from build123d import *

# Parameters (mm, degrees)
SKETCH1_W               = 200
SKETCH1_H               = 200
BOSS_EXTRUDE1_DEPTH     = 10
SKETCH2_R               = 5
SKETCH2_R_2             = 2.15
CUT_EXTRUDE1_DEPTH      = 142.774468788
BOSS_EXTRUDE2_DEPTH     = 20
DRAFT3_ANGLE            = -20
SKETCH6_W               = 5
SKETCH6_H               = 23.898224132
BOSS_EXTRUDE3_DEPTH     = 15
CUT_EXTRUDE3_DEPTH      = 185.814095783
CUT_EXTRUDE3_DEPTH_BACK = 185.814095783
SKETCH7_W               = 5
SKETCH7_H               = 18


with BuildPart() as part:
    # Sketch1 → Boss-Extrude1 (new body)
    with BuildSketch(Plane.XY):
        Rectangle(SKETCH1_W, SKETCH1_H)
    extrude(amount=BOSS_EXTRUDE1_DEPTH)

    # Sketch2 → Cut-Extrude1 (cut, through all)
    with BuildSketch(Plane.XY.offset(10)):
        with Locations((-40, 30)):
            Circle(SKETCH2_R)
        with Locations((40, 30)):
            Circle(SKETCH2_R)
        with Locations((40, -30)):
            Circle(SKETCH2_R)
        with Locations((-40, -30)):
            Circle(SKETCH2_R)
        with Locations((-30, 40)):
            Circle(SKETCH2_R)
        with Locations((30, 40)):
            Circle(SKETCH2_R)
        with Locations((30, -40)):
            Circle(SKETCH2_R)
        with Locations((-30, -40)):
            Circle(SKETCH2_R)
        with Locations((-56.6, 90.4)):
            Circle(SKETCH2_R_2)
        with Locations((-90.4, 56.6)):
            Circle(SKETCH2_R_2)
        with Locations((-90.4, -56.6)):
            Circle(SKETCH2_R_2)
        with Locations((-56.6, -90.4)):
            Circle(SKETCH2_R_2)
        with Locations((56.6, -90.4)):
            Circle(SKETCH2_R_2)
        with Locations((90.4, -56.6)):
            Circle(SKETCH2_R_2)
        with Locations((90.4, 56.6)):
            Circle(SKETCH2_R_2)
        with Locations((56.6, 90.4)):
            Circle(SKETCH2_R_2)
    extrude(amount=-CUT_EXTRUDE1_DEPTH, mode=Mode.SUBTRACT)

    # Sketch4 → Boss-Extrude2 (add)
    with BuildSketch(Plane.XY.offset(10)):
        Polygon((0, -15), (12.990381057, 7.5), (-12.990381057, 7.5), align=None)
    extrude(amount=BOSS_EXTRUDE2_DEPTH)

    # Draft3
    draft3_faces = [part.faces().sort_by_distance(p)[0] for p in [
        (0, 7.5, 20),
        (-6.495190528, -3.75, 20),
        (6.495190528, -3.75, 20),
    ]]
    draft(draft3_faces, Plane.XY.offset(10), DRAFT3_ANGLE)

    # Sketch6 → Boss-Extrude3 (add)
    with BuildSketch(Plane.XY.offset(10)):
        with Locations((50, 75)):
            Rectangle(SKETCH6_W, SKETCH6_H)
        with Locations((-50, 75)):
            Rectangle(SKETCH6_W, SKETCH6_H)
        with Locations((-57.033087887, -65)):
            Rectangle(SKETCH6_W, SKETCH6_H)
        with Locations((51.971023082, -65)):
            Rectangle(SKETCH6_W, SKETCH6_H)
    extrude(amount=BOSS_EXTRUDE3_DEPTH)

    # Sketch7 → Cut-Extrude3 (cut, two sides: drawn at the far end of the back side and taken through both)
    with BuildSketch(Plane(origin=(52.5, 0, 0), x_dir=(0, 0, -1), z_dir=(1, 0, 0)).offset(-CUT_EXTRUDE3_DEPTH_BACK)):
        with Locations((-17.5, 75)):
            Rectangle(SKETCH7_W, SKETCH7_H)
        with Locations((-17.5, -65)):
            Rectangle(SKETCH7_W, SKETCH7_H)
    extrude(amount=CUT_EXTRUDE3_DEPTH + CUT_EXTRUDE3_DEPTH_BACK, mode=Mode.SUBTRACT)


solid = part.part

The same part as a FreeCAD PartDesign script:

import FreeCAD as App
import Part
import Sketcher
from FreeCAD import Vector
Q = App.Units.Quantity


def faces_at(feature, points):
    """Names of the faces that lie closest to the given points."""
    faces = feature.Shape.Faces
    near = lambda p: min(range(len(faces)), key=lambda i: faces[i].distToShape(Part.Vertex(*p))[0])
    return sorted({f"Face{near(p) + 1}" for p in points})

doc = App.newDocument("Part")
body = doc.addObject("PartDesign::Body", "Body")

# Sketch on XY plane
sketch1 = doc.addObject("Sketcher::SketchObject", "Sketch")
body.addObject(sketch1)
sketch1.AttachmentSupport = (doc.XY_Plane, [""])
sketch1.MapMode = "FlatFace"
sketch1.addGeometry([
    Part.LineSegment(Vector(-100, 100, 0), Vector(-100, -100, 0)),
    Part.LineSegment(Vector(-100, -100, 0), Vector(100, -100, 0)),
    Part.LineSegment(Vector(100, -100, 0), Vector(100, 100, 0)),
    Part.LineSegment(Vector(100, 100, 0), Vector(-100, 100, 0)),
], False)
sketch1.addConstraint([
    Sketcher.Constraint("Coincident", 0, 2, 1, 1),
    Sketcher.Constraint("Coincident", 1, 2, 2, 1),
    Sketcher.Constraint("Coincident", 2, 2, 3, 1),
    Sketcher.Constraint("Coincident", 3, 2, 0, 1),
    Sketcher.Constraint("Vertical", 0),
    Sketcher.Constraint("Horizontal", 1),
    Sketcher.Constraint("Vertical", 2),
    Sketcher.Constraint("Horizontal", 3),
    Sketcher.Constraint("Symmetric", 0, 2, 2, 2, -1, 1),
    Sketcher.Constraint("Equal", 3, 0),
    Sketcher.Constraint("DistanceX", 1, 1, 1, 2, Q("200 mm")),
])
pad1 = doc.addObject("PartDesign::Pad", "Pad")
body.addObject(pad1)
pad1.Profile = sketch1
pad1.Length = 10

# Sketch on XY plane
sketch2 = doc.addObject("Sketcher::SketchObject", "Sketch001")
body.addObject(sketch2)
sketch2.AttachmentSupport = (doc.XY_Plane, [""])
sketch2.MapMode = "FlatFace"
sketch2.AttachmentOffset = App.Placement(Vector(0, 0, 10), App.Rotation())
sketch2.addGeometry([
    Part.Circle(Vector(-40, 30, 0), Vector(0, 0, 1), 5),  # 0
    Part.Circle(Vector(40, 30, 0), Vector(0, 0, 1), 5),  # 1
    Part.Circle(Vector(40, -30, 0), Vector(0, 0, 1), 5),  # 2
    Part.Circle(Vector(-40, -30, 0), Vector(0, 0, 1), 5),  # 3
    Part.Circle(Vector(-30, 40, 0), Vector(0, 0, 1), 5),  # 4
    Part.Circle(Vector(30, 40, 0), Vector(0, 0, 1), 5),  # 5
    Part.Circle(Vector(30, -40, 0), Vector(0, 0, 1), 5),  # 6
    Part.Circle(Vector(-30, -40, 0), Vector(0, 0, 1), 5),  # 7
    Part.Circle(Vector(-56.6, 90.4, 0), Vector(0, 0, 1), 2.1),  # 8
    Part.Circle(Vector(-90.4, 56.6, 0), Vector(0, 0, 1), 2.1),  # 9
    Part.Circle(Vector(-90.4, -56.6, 0), Vector(0, 0, 1), 2.1),  # 10
    Part.Circle(Vector(-56.6, -90.4, 0), Vector(0, 0, 1), 2.1),  # 11
    Part.Circle(Vector(56.6, -90.4, 0), Vector(0, 0, 1), 2.1),  # 12
    Part.Circle(Vector(90.4, -56.6, 0), Vector(0, 0, 1), 2.1),  # 13
    Part.Circle(Vector(90.4, 56.6, 0), Vector(0, 0, 1), 2.1),  # 14
    Part.Circle(Vector(56.6, 90.4, 0), Vector(0, 0, 1), 2.1),  # 15
], False)
sketch2.addConstraint([
    Sketcher.Constraint("Equal", 0, 1),
    Sketcher.Constraint("Equal", 1, 2),
    Sketcher.Constraint("Equal", 2, 3),
    Sketcher.Constraint("Equal", 3, 4),
    Sketcher.Constraint("Equal", 4, 5),
    Sketcher.Constraint("Equal", 5, 6),
    Sketcher.Constraint("Equal", 6, 7),
    Sketcher.Constraint("Equal", 8, 9),
    Sketcher.Constraint("Equal", 9, 10),
    Sketcher.Constraint("Equal", 10, 11),
    Sketcher.Constraint("Equal", 11, 12),
    Sketcher.Constraint("Equal", 12, 13),
    Sketcher.Constraint("Equal", 13, 14),
    Sketcher.Constraint("Equal", 14, 15),
    Sketcher.Constraint("Symmetric", 0, 3, 2, 3, -1, 1),
    Sketcher.Constraint("Symmetric", 1, 3, 3, 3, -1, 1),
    Sketcher.Constraint("Symmetric", 4, 3, 6, 3, -1, 1),
    Sketcher.Constraint("Symmetric", 5, 3, 7, 3, -1, 1),
    Sketcher.Constraint("Symmetric", 8, 3, 12, 3, -1, 1),
    Sketcher.Constraint("Symmetric", 9, 3, 13, 3, -1, 1),
    Sketcher.Constraint("Symmetric", 10, 3, 14, 3, -1, 1),
    Sketcher.Constraint("Symmetric", 11, 3, 15, 3, -1, 1),
    Sketcher.Constraint("Symmetric", 0, 3, 1, 3, -2),
    Sketcher.Constraint("Symmetric", 4, 3, 5, 3, -2),
    Sketcher.Constraint("Symmetric", 11, 3, 12, 3, -2),
    Sketcher.Constraint("Symmetric", 10, 3, 13, 3, -2),
    Sketcher.Constraint("Diameter", 0, Q("10 mm")),
    Sketcher.Constraint("Diameter", 8, Q("4.3 mm")),
    Sketcher.Constraint("DistanceX", 0, 3, -1, 1, Q("40 mm")),
    Sketcher.Constraint("DistanceY", -1, 1, 0, 3, Q("30 mm")),
    Sketcher.Constraint("DistanceX", 4, 3, -1, 1, Q("30 mm")),
    Sketcher.Constraint("DistanceY", -1, 1, 4, 3, Q("40 mm")),
    Sketcher.Constraint("DistanceX", 8, 3, -1, 1, Q("56.6 mm")),
    Sketcher.Constraint("DistanceY", -1, 1, 8, 3, Q("90.4 mm")),
    Sketcher.Constraint("DistanceX", 9, 3, -1, 1, Q("90.4 mm")),
    Sketcher.Constraint("DistanceY", -1, 1, 9, 3, Q("56.6 mm")),
])
pocket1 = doc.addObject("PartDesign::Pocket", "Pocket")
body.addObject(pocket1)
pocket1.Profile = sketch2
pocket1.Type = "ThroughAll"

# Sketch on XY plane
sketch3 = doc.addObject("Sketcher::SketchObject", "Sketch002")
body.addObject(sketch3)
sketch3.AttachmentSupport = (doc.XY_Plane, [""])
sketch3.MapMode = "FlatFace"
sketch3.AttachmentOffset = App.Placement(Vector(0, 0, 10), App.Rotation())
sketch3.addGeometry([
    Part.LineSegment(Vector(0, -15, 0), Vector(13, 8, 0)),
    Part.LineSegment(Vector(13, 8, 0), Vector(-13, 8, 0)),
    Part.LineSegment(Vector(-13, 8, 0), Vector(0, -15, 0)),
], False)
sketch3.addConstraint([
    Sketcher.Constraint("Coincident", 0, 2, 1, 1),
    Sketcher.Constraint("Coincident", 1, 2, 2, 1),
    Sketcher.Constraint("Coincident", 2, 2, 0, 1),
    Sketcher.Constraint("Horizontal", 1),
    Sketcher.Constraint("PointOnObject", 2, 2, -2),
    Sketcher.Constraint("Equal", 0, 2),
    Sketcher.Constraint("Angle", 0, Q("60 deg")),
    Sketcher.Constraint("DistanceY", 2, 2, -1, 1, Q("15 mm")),
    Sketcher.Constraint("DistanceY", -1, 1, 0, 2, Q("7.5 mm")),
])
pad2 = doc.addObject("PartDesign::Pad", "Pad001")
body.addObject(pad2)
pad2.Profile = sketch3
pad2.Length = 20
doc.recompute()

datumplane = doc.addObject("PartDesign::Plane", "DatumPlane")
body.addObject(datumplane)
datumplane.AttachmentSupport = (doc.XY_Plane, [""])
datumplane.MapMode = "FlatFace"
datumplane.AttachmentOffset = App.Placement(Vector(0, 0, 10), App.Rotation())
draft = doc.addObject("PartDesign::Draft", "Draft")
body.addObject(draft)
draft.Base = (pad2, faces_at(pad2, [(0, 7.5, 20), (-6.495, -3.75, 20), (6.495, -3.75, 20)]))
draft.NeutralPlane = (datumplane, [""])
draft.Angle = 20
draft.Reversed = True

# Sketch on XY plane
sketch4 = doc.addObject("Sketcher::SketchObject", "Sketch003")
body.addObject(sketch4)
sketch4.AttachmentSupport = (doc.XY_Plane, [""])
sketch4.MapMode = "FlatFace"
sketch4.AttachmentOffset = App.Placement(Vector(0, 0, 10), App.Rotation())
sketch4.addGeometry([
    Part.LineSegment(Vector(48, 87, 0), Vector(48, 63, 0)),  # 0
    Part.LineSegment(Vector(48, 63, 0), Vector(52, 63, 0)),  # 1
    Part.LineSegment(Vector(52, 63, 0), Vector(52, 87, 0)),  # 2
    Part.LineSegment(Vector(52, 87, 0), Vector(48, 87, 0)),  # 3
    Part.LineSegment(Vector(-52, 87, 0), Vector(-52, 63, 0)),  # 4
    Part.LineSegment(Vector(-52, 63, 0), Vector(-48, 63, 0)),  # 5
    Part.LineSegment(Vector(-48, 63, 0), Vector(-48, 87, 0)),  # 6
    Part.LineSegment(Vector(-48, 87, 0), Vector(-52, 87, 0)),  # 7
    Part.LineSegment(Vector(-60, -53, 0), Vector(-60, -77, 0)),  # 8
    Part.LineSegment(Vector(-60, -77, 0), Vector(-55, -77, 0)),  # 9
    Part.LineSegment(Vector(-55, -77, 0), Vector(-55, -53, 0)),  # 10
    Part.LineSegment(Vector(-55, -53, 0), Vector(-60, -53, 0)),  # 11
    Part.LineSegment(Vector(49, -53, 0), Vector(49, -77, 0)),  # 12
    Part.LineSegment(Vector(49, -77, 0), Vector(54, -77, 0)),  # 13
    Part.LineSegment(Vector(54, -77, 0), Vector(54, -53, 0)),  # 14
    Part.LineSegment(Vector(54, -53, 0), Vector(49, -53, 0)),  # 15
], False)
sketch4.addConstraint([
    Sketcher.Constraint("Coincident", 0, 2, 1, 1),
    Sketcher.Constraint("Coincident", 1, 2, 2, 1),
    Sketcher.Constraint("Coincident", 2, 2, 3, 1),
    Sketcher.Constraint("Coincident", 3, 2, 0, 1),
    Sketcher.Constraint("Coincident", 4, 2, 5, 1),
    Sketcher.Constraint("Coincident", 5, 2, 6, 1),
    Sketcher.Constraint("Coincident", 6, 2, 7, 1),
    Sketcher.Constraint("Coincident", 7, 2, 4, 1),
    Sketcher.Constraint("Coincident", 8, 2, 9, 1),
    Sketcher.Constraint("Coincident", 9, 2, 10, 1),
    Sketcher.Constraint("Coincident", 10, 2, 11, 1),
    Sketcher.Constraint("Coincident", 11, 2, 8, 1),
    Sketcher.Constraint("Coincident", 12, 2, 13, 1),
    Sketcher.Constraint("Coincident", 13, 2, 14, 1),
    Sketcher.Constraint("Coincident", 14, 2, 15, 1),
    Sketcher.Constraint("Coincident", 15, 2, 12, 1),
    Sketcher.Constraint("Vertical", 0),
    Sketcher.Constraint("Horizontal", 1),
    Sketcher.Constraint("Vertical", 2),
    Sketcher.Constraint("Horizontal", 3),
    Sketcher.Constraint("Vertical", 4),
    Sketcher.Constraint("Horizontal", 5),
    Sketcher.Constraint("Vertical", 6),
    Sketcher.Constraint("Horizontal", 7),
    Sketcher.Constraint("Vertical", 8),
    Sketcher.Constraint("Horizontal", 9),
    Sketcher.Constraint("Vertical", 10),
    Sketcher.Constraint("Horizontal", 11),
    Sketcher.Constraint("Vertical", 12),
    Sketcher.Constraint("Horizontal", 13),
    Sketcher.Constraint("Vertical", 14),
    Sketcher.Constraint("Horizontal", 15),
    Sketcher.Constraint("Symmetric", 1, 2, 4, 2, -2),
    Sketcher.Constraint("Symmetric", 3, 2, 6, 2, -2),
    Sketcher.Constraint("Horizontal", 9, 2, 12, 2),
    Sketcher.Constraint("Horizontal", 11, 2, 14, 2),
    Sketcher.Constraint("Equal", 7, 9),
    Sketcher.Constraint("Equal", 11, 13),
    Sketcher.Constraint("Equal", 6, 8),
    Sketcher.Constraint("DistanceX", 1, 1, 1, 2, Q("5 mm")),
    Sketcher.Constraint("DistanceX", 4, 2, 0, 2, Q("100 mm")),
    Sketcher.Constraint("DistanceY", 8, 2, 4, 2, Q("140 mm")),
    Sketcher.Constraint("DistanceY", 0, 2, 0, 1, Q("23.898224 mm")),
    Sketcher.Constraint("DistanceX", 9, 2, 12, 2, Q("104.004111 mm")),
    Sketcher.Constraint("DistanceY", -1, 1, 0, 2, Q("63.050888 mm")),
    Sketcher.Constraint("DistanceX", 8, 2, -1, 1, Q("59.533088 mm")),
])
pad3 = doc.addObject("PartDesign::Pad", "Pad002")
body.addObject(pad3)
pad3.Profile = sketch4
pad3.Length = 15

# Sketch on YZ plane
sketch5 = doc.addObject("Sketcher::SketchObject", "Sketch004")
body.addObject(sketch5)
sketch5.AttachmentSupport = (doc.YZ_Plane, [""])
sketch5.MapMode = "FlatFace"
sketch5.AttachmentOffset = App.Placement(Vector(0, 0, 52.5), App.Rotation())
sketch5.addGeometry([
    Part.LineSegment(Vector(84, 20, 0), Vector(66, 20, 0)),  # 0
    Part.LineSegment(Vector(66, 20, 0), Vector(66, 15, 0)),  # 1
    Part.LineSegment(Vector(66, 15, 0), Vector(84, 15, 0)),  # 2
    Part.LineSegment(Vector(84, 15, 0), Vector(84, 20, 0)),  # 3
    Part.LineSegment(Vector(-56, 20, 0), Vector(-74, 20, 0)),  # 4
    Part.LineSegment(Vector(-74, 20, 0), Vector(-74, 15, 0)),  # 5
    Part.LineSegment(Vector(-74, 15, 0), Vector(-56, 15, 0)),  # 6
    Part.LineSegment(Vector(-56, 15, 0), Vector(-56, 20, 0)),  # 7
], False)
sketch5.addConstraint([
    Sketcher.Constraint("Coincident", 0, 2, 1, 1),
    Sketcher.Constraint("Coincident", 1, 2, 2, 1),
    Sketcher.Constraint("Coincident", 2, 2, 3, 1),
    Sketcher.Constraint("Coincident", 3, 2, 0, 1),
    Sketcher.Constraint("Coincident", 4, 2, 5, 1),
    Sketcher.Constraint("Coincident", 5, 2, 6, 1),
    Sketcher.Constraint("Coincident", 6, 2, 7, 1),
    Sketcher.Constraint("Coincident", 7, 2, 4, 1),
    Sketcher.Constraint("Horizontal", 0),
    Sketcher.Constraint("Vertical", 1),
    Sketcher.Constraint("Horizontal", 2),
    Sketcher.Constraint("Vertical", 3),
    Sketcher.Constraint("Horizontal", 4),
    Sketcher.Constraint("Vertical", 5),
    Sketcher.Constraint("Horizontal", 6),
    Sketcher.Constraint("Vertical", 7),
    Sketcher.Constraint("Horizontal", 3, 2, 4, 2),
    Sketcher.Constraint("Horizontal", 2, 2, 5, 2),
    Sketcher.Constraint("Equal", 2, 4),
    Sketcher.Constraint("DistanceX", 0, 2, 0, 1, Q("18 mm")),
    Sketcher.Constraint("DistanceY", 1, 2, 1, 1, Q("5 mm")),
    Sketcher.Constraint("DistanceX", -1, 1, 0, 2, Q("66 mm")),
    Sketcher.Constraint("DistanceY", -1, 1, 0, 2, Q("20 mm")),
    Sketcher.Constraint("DistanceX", 4, 2, -1, 1, Q("74 mm")),
])
pocket2 = doc.addObject("PartDesign::Pocket", "Pocket001")
body.addObject(pocket2)
pocket2.Profile = sketch5
pocket2.Type = "ThroughAll"
pocket2.Midplane = True

doc.recompute()
